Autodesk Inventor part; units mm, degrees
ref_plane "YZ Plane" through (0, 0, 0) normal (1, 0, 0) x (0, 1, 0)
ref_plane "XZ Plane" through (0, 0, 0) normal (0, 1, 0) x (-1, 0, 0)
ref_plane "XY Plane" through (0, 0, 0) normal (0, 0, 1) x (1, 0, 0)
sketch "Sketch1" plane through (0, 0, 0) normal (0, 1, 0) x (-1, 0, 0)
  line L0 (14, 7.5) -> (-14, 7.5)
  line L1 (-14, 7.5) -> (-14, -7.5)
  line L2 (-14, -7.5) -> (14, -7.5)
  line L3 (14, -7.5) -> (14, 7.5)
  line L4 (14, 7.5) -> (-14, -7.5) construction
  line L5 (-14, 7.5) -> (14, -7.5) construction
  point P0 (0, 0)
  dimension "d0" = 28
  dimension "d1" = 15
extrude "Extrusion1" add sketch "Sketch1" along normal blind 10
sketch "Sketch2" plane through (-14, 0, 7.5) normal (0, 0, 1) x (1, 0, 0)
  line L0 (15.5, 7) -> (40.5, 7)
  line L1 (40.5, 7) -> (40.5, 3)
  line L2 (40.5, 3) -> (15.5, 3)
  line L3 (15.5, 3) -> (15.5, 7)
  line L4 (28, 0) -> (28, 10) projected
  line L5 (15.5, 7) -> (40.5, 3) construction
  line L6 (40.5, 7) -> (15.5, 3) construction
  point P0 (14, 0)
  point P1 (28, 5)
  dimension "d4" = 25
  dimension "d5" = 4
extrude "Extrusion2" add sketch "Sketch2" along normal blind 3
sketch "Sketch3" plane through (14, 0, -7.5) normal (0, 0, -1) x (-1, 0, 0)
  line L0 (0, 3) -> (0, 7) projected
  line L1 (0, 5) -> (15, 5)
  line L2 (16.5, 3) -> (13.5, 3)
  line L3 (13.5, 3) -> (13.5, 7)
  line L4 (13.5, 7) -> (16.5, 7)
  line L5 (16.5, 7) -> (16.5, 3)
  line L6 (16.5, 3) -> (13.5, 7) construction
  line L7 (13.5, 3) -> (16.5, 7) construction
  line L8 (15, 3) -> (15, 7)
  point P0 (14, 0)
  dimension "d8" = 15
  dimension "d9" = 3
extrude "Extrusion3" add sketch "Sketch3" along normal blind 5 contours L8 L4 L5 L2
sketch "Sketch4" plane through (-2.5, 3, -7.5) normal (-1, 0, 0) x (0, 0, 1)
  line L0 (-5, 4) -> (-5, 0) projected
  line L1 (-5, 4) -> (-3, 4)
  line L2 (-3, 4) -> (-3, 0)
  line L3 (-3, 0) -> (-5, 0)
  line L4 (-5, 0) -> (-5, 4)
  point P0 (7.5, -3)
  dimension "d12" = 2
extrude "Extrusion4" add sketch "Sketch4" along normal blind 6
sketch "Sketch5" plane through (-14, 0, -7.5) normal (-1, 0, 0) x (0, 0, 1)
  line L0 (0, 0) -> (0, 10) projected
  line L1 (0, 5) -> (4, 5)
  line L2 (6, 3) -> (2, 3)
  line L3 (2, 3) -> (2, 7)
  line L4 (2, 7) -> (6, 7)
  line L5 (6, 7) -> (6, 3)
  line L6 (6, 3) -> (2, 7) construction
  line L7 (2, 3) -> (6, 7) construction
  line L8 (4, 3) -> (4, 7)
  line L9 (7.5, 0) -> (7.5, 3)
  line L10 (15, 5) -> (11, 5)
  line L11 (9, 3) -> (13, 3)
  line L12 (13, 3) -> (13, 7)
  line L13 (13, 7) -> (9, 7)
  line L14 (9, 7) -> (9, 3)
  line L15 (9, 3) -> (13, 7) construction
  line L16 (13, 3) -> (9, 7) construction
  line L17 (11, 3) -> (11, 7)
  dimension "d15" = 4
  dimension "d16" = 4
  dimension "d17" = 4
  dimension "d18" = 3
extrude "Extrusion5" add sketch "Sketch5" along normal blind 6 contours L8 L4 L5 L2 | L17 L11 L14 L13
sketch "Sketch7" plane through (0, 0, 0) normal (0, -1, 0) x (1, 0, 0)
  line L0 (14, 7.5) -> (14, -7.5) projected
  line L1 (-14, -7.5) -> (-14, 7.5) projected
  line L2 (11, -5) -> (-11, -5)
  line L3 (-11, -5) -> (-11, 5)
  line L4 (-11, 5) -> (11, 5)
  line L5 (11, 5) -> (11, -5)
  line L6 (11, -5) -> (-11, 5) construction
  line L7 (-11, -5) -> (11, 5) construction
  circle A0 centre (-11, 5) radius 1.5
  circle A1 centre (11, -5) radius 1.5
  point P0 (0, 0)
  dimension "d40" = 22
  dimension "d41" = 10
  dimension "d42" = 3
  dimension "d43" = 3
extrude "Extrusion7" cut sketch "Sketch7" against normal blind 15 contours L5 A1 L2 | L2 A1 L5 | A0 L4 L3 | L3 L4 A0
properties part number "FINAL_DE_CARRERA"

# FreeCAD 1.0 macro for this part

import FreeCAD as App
import Part
import Sketcher
from FreeCAD import Vector

doc = App.newDocument("Part")
body = doc.addObject("PartDesign::Body", "Body")

sketch1 = body.newObject("Sketcher::SketchObject", "Sketch")
sketch1.AttachmentSupport = (doc.getObject("XZ_Plane"), [""])
sketch1.MapMode = "FlatFace"
sketch1.addGeometry([
    Part.LineSegment(Vector(-14, -8, 0), Vector(-14, 8, 0)),
    Part.LineSegment(Vector(-14, 8, 0), Vector(14, 8, 0)),
    Part.LineSegment(Vector(14, 8, 0), Vector(14, -8, 0)),
    Part.LineSegment(Vector(14, -8, 0), Vector(-14, -8, 0)),
], False)
sketch1.addConstraint([
    Sketcher.Constraint("Coincident", 0, 2, 1, 1),
    Sketcher.Constraint("Coincident", 1, 2, 2, 1),
    Sketcher.Constraint("Coincident", 2, 2, 3, 1),
    Sketcher.Constraint("Coincident", 3, 2, 0, 1),
    Sketcher.Constraint("Vertical", 0),
    Sketcher.Constraint("Horizontal", 1),
    Sketcher.Constraint("Vertical", 2),
    Sketcher.Constraint("Horizontal", 3),
    Sketcher.Constraint("Symmetric", 0, 2, 2, 2, -1, 1),
    Sketcher.Constraint("DistanceX", 1, 1, 1, 2, 28.0),
    Sketcher.Constraint("DistanceY", 0, 1, 0, 2, 15.0),
])
pad1 = body.newObject("PartDesign::Pad", "Pad")
pad1.Profile = sketch1
pad1.Length = 10
pad1.Reversed = True

sketch2 = body.newObject("Sketcher::SketchObject", "Sketch001")
sketch2.AttachmentSupport = (doc.getObject("XY_Plane"), [""])
sketch2.MapMode = "FlatFace"
sketch2.AttachmentOffset = App.Placement(Vector(0, 0, 7.5), App.Rotation())
sketch2.addGeometry([
    Part.LineSegment(Vector(1.5, 7, 0), Vector(1.5, 3, 0)),
    Part.LineSegment(Vector(1.5, 3, 0), Vector(26.5, 3, 0)),
    Part.LineSegment(Vector(26.5, 3, 0), Vector(26.5, 7, 0)),
    Part.LineSegment(Vector(26.5, 7, 0), Vector(1.5, 7, 0)),
], False)
sketch2.addConstraint([
    Sketcher.Constraint("Coincident", 0, 2, 1, 1),
    Sketcher.Constraint("Coincident", 1, 2, 2, 1),
    Sketcher.Constraint("Coincident", 2, 2, 3, 1),
    Sketcher.Constraint("Coincident", 3, 2, 0, 1),
    Sketcher.Constraint("Vertical", 0),
    Sketcher.Constraint("Horizontal", 1),
    Sketcher.Constraint("Vertical", 2),
    Sketcher.Constraint("Horizontal", 3),
    Sketcher.Constraint("DistanceX", 1, 1, 1, 2, 25.0),
    Sketcher.Constraint("DistanceY", 0, 2, 0, 1, 4.0),
    Sketcher.Constraint("DistanceY", -1, 1, 0, 2, 3.0),
    Sketcher.Constraint("DistanceX", -1, 1, 0, 2, 1.5),
])
pad2 = body.newObject("PartDesign::Pad", "Pad001")
pad2.Profile = sketch2
pad2.Length = 3

sketch3 = body.newObject("Sketcher::SketchObject", "Sketch002")
sketch3.AttachmentSupport = (doc.getObject("XY_Plane"), [""])
sketch3.MapMode = "FlatFace"
sketch3.AttachmentOffset = App.Placement(Vector(0, 0, -7.5), App.Rotation())
sketch3.addGeometry([
    Part.LineSegment(Vector(-1, 7, 0), Vector(-1, 3, 0)),
    Part.LineSegment(Vector(-1, 3, 0), Vector(-2.5, 3, 0)),
    Part.LineSegment(Vector(-2.5, 3, 0), Vector(-2.5, 7, 0)),
    Part.LineSegment(Vector(-2.5, 7, 0), Vector(-1, 7, 0)),
], False)
sketch3.addConstraint([
    Sketcher.Constraint("Coincident", 0, 2, 1, 1),
    Sketcher.Constraint("Coincident", 1, 2, 2, 1),
    Sketcher.Constraint("Coincident", 2, 2, 3, 1),
    Sketcher.Constraint("Coincident", 3, 2, 0, 1),
    Sketcher.Constraint("Vertical", 0),
    Sketcher.Constraint("Horizontal", 1),
    Sketcher.Constraint("Vertical", 2),
    Sketcher.Constraint("Horizontal", 3),
    Sketcher.Constraint("DistanceY", -1, 1, 0, 2, 3.0),
    Sketcher.Constraint("DistanceY", 0, 2, 0, 1, 4.0),
    Sketcher.Constraint("DistanceX", 1, 2, 1, 1, 1.5),
    Sketcher.Constraint("DistanceX", 0, 2, -1, 1, 1.0),
])
pad3 = body.newObject("PartDesign::Pad", "Pad002")
pad3.Profile = sketch3
pad3.Length = 5
pad3.Reversed = True

sketch4 = body.newObject("Sketcher::SketchObject", "Sketch003")
sketch4.AttachmentSupport = (doc.getObject("YZ_Plane"), [""])
sketch4.MapMode = "FlatFace"
sketch4.AttachmentOffset = App.Placement(Vector(0, 0, -2.5), App.Rotation())
sketch4.addGeometry([
    Part.LineSegment(Vector(7, -10.5, 0), Vector(7, -12.5, 0)),
    Part.LineSegment(Vector(7, -12.5, 0), Vector(3, -12.5, 0)),
    Part.LineSegment(Vector(3, -12.5, 0), Vector(3, -10.5, 0)),
    Part.LineSegment(Vector(3, -10.5, 0), Vector(7, -10.5, 0)),
], False)
sketch4.addConstraint([
    Sketcher.Constraint("Coincident", 0, 2, 1, 1),
    Sketcher.Constraint("Coincident", 1, 2, 2, 1),
    Sketcher.Constraint("Coincident", 2, 2, 3, 1),
    Sketcher.Constraint("Coincident", 3, 2, 0, 1),
    Sketcher.Constraint("Vertical", 0),
    Sketcher.Constraint("Horizontal", 1),
    Sketcher.Constraint("Vertical", 2),
    Sketcher.Constraint("Horizontal", 3),
    Sketcher.Constraint("DistanceY", 0, 2, 0, 1, 2.0),
    Sketcher.Constraint("DistanceX", 1, 2, 1, 1, 4.0),
    Sketcher.Constraint("DistanceX", -1, 1, 0, 2, 7.0),
    Sketcher.Constraint("DistanceY", 0, 2, -1, 1, 12.5),
])
pad4 = body.newObject("PartDesign::Pad", "Pad003")
pad4.Profile = sketch4
pad4.Length = 6
pad4.Reversed = True

sketch5 = body.newObject("Sketcher::SketchObject", "Sketch004")
sketch5.AttachmentSupport = (doc.getObject("YZ_Plane"), [""])
sketch5.MapMode = "FlatFace"
sketch5.AttachmentOffset = App.Placement(Vector(0, 0, -14), App.Rotation())
sketch5.addGeometry([
    Part.LineSegment(Vector(7, -3.5, 0), Vector(3, -3.5, 0)),
    Part.LineSegment(Vector(3, -3.5, 0), Vector(3, -1.5, 0)),
    Part.LineSegment(Vector(3, -1.5, 0), Vector(7, -1.5, 0)),
    Part.LineSegment(Vector(7, -1.5, 0), Vector(7, -3.5, 0)),
    Part.LineSegment(Vector(3, 3.5, 0), Vector(7, 3.5, 0)),
    Part.LineSegment(Vector(7, 3.5, 0), Vector(7, 1.5, 0)),
    Part.LineSegment(Vector(7, 1.5, 0), Vector(3, 1.5, 0)),
    Part.LineSegment(Vector(3, 1.5, 0), Vector(3, 3.5, 0)),
], False)
sketch5.addConstraint([
    Sketcher.Constraint("Coincident", 0, 2, 1, 1),
    Sketcher.Constraint("Coincident", 1, 2, 2, 1),
    Sketcher.Constraint("Coincident", 2, 2, 3, 1),
    Sketcher.Constraint("Coincident", 3, 2, 0, 1),
    Sketcher.Constraint("Coincident", 4, 2, 5, 1),
    Sketcher.Constraint("Coincident", 5, 2, 6, 1),
    Sketcher.Constraint("Coincident", 6, 2, 7, 1),
    Sketcher.Constraint("Coincident", 7, 2, 4, 1),
    Sketcher.Constraint("Horizontal", 0),
    Sketcher.Constraint("Vertical", 1),
    Sketcher.Constraint("Horizontal", 2),
    Sketcher.Constraint("Vertical", 3),
    Sketcher.Constraint("Horizontal", 4),
    Sketcher.Constraint("Vertical", 5),
    Sketcher.Constraint("Horizontal", 6),
    Sketcher.Constraint("Vertical", 7),
    Sketcher.Constraint("Symmetric", 3, 2, 4, 2, -1),
    Sketcher.Constraint("Symmetric", 1, 2, 6, 2, -1),
    Sketcher.Constraint("DistanceX", 0, 2, 0, 1, 4.0),
    Sketcher.Constraint("DistanceX", -1, 1, 0, 2, 3.0),
    Sketcher.Constraint("DistanceY", 2, 2, 5, 2, 3.0),
    Sketcher.Constraint("DistanceY", 1, 1, 1, 2, 2.0),
])
pad5 = body.newObject("PartDesign::Pad", "Pad004")
pad5.Profile = sketch5
pad5.Length = 6
pad5.Reversed = True

sketch6 = body.newObject("Sketcher::SketchObject", "Sketch005")
sketch6.AttachmentSupport = (doc.getObject("XZ_Plane"), [""])
sketch6.MapMode = "FlatFace"
sketch6.addGeometry([
    Part.Circle(Vector(11, -5, 0), Vector(0, 0, 1), 1.5),
    Part.Circle(Vector(-11, 5, 0), Vector(0, 0, 1), 1.5),
], False)
sketch6.addConstraint([
    Sketcher.Constraint("Equal", 0, 1),
    Sketcher.Constraint("Symmetric", 0, 3, 1, 3, -1, 1),
    Sketcher.Constraint("Diameter", 0, 3.0),
    Sketcher.Constraint("DistanceX", 1, 3, 0, 3, 22.0),
    Sketcher.Constraint("DistanceY", 0, 3, 1, 3, 10.0),
])
pocket1 = body.newObject("PartDesign::Pocket", "Pocket")
pocket1.Profile = sketch6
pocket1.Length = 15

doc.recompute()
